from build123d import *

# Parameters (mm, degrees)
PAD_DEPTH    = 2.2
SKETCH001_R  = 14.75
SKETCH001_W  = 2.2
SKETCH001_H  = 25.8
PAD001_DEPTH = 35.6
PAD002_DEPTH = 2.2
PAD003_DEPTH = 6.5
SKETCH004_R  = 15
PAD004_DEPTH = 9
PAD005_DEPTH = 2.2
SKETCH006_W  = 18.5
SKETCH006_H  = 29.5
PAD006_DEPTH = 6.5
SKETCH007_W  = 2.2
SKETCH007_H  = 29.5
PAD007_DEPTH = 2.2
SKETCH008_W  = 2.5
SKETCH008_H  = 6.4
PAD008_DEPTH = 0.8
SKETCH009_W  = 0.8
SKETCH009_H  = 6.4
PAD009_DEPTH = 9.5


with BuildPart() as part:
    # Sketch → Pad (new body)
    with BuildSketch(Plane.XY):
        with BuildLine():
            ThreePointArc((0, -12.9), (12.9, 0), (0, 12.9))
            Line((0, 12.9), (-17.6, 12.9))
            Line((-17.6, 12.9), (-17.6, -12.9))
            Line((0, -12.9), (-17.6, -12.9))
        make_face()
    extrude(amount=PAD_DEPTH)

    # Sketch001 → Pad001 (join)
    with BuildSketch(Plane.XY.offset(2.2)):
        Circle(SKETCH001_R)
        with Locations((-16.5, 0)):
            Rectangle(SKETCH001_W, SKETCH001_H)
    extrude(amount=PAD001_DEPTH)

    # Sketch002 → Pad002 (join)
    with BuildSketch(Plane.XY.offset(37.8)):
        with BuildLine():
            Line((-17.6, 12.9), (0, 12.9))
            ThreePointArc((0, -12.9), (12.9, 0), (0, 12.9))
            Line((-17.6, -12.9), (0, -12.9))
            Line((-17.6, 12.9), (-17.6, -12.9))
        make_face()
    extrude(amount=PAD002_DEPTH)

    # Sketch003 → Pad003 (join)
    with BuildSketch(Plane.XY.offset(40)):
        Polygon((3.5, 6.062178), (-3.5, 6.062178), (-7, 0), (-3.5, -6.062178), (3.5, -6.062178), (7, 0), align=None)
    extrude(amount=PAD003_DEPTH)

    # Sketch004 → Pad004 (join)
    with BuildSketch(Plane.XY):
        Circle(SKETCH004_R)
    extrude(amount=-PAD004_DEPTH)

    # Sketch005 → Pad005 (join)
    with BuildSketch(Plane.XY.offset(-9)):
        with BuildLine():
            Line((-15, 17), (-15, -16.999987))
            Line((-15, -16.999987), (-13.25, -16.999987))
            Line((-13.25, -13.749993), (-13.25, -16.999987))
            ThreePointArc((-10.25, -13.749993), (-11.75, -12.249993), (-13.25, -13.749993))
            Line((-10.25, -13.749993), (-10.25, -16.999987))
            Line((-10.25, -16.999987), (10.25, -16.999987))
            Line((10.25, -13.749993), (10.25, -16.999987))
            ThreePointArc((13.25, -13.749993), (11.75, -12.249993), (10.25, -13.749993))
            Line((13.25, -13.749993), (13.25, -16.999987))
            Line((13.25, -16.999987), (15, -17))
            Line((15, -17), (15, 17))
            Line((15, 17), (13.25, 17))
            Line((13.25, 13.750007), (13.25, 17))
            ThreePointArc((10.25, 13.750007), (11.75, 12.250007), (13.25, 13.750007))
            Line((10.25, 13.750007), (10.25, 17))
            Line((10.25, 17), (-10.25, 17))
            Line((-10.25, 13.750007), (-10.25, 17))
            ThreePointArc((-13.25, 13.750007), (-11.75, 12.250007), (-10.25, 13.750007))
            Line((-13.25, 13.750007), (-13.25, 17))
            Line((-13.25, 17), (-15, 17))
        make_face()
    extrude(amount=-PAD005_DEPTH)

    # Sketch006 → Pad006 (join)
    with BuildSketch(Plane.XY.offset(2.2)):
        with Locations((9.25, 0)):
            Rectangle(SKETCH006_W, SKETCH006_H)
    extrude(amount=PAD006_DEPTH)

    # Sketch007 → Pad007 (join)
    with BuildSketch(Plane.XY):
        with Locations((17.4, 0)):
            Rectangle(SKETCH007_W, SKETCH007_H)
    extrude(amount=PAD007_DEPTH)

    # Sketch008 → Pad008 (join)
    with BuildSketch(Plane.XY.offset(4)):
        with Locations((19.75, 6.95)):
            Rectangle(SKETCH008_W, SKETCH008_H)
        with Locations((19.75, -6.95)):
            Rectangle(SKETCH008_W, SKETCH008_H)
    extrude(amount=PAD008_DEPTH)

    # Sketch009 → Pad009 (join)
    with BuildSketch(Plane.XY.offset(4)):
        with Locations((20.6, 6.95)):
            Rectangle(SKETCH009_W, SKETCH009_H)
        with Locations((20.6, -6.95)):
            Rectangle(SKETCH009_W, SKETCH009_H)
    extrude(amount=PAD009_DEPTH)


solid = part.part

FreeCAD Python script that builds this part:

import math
import FreeCAD as App
import Part
import Sketcher
from FreeCAD import Vector
Q = App.Units.Quantity

doc = App.newDocument("Part")
body = doc.addObject("PartDesign::Body", "Body")

# Sketch on XY plane
sketch1 = body.newObject("Sketcher::SketchObject", "Sketch")
sketch1.AttachmentSupport = (doc.getObject("XY_Plane"), [""])
sketch1.MapMode = "FlatFace"
sketch1.addGeometry([
    Part.ArcOfCircle(Part.Circle(Vector(0, 0, 0), Vector(0, 0, 1), 13), math.radians(-90), math.radians(90)),
    Part.LineSegment(Vector(0, 13, 0), Vector(-18, 13, 0)),
    Part.LineSegment(Vector(-18, 13, 0), Vector(-18, -13, 0)),
    Part.LineSegment(Vector(-18, -13, 0), Vector(0, -13, 0)),
], False)
sketch1.addConstraint([
    Sketcher.Constraint("Tangent", 0, 2, 1, 1),
    Sketcher.Constraint("Coincident", 1, 2, 2, 1),
    Sketcher.Constraint("Coincident", 2, 2, 3, 1),
    Sketcher.Constraint("Tangent", 3, 2, 0, 1),
    Sketcher.Constraint("Horizontal", 1),
    Sketcher.Constraint("Vertical", 2),
    Sketcher.Constraint("Horizontal", 3),
    Sketcher.Constraint("Coincident", 0, 3, -1, 1),
    Sketcher.Constraint("Radius", 0, Q("12.9 mm")),
    Sketcher.Constraint("DistanceX", 1, 2, 1, 1, Q("17.6 mm")),
])
pad1 = body.newObject("PartDesign::Pad", "Pad")
pad1.Profile = sketch1
pad1.Length = 2.2

# Sketch on XY plane
sketch2 = body.newObject("Sketcher::SketchObject", "Sketch001")
sketch2.AttachmentSupport = (doc.getObject("XY_Plane"), [""])
sketch2.MapMode = "FlatFace"
sketch2.AttachmentOffset = App.Placement(Vector(0, 0, 2.2), App.Rotation())
sketch2.addGeometry([
    Part.Circle(Vector(0, 0, 0), Vector(0, 0, 1), 14.8),  # 0
    Part.LineSegment(Vector(-17.6, 12.9, 0), Vector(-17.6, -12.9, 0)),  # 1
    Part.LineSegment(Vector(-17.6, -12.9, 0), Vector(-15.4, -12.9, 0)),  # 2
    Part.LineSegment(Vector(-15.4, -12.9, 0), Vector(-15.4, 12.9, 0)),  # 3
    Part.LineSegment(Vector(-15.4, 12.9, 0), Vector(-17.6, 12.9, 0)),  # 4
], False)
sketch2.addConstraint([
    Sketcher.Constraint("Coincident", 1, 2, 2, 1),
    Sketcher.Constraint("Coincident", 2, 2, 3, 1),
    Sketcher.Constraint("Coincident", 3, 2, 4, 1),
    Sketcher.Constraint("Coincident", 4, 2, 1, 1),
    Sketcher.Constraint("Vertical", 1),
    Sketcher.Constraint("Horizontal", 2),
    Sketcher.Constraint("Vertical", 3),
    Sketcher.Constraint("Horizontal", 4),
    Sketcher.Constraint("Coincident", 0, 3, -1, 1),
    Sketcher.Constraint("Diameter", 0, Q("29.5 mm")),
    Sketcher.Constraint("DistanceX", 2, 1, 2, 2, Q("2.2 mm")),
    Sketcher.Constraint("DistanceY", 1, 2, 1, 1, Q("25.8 mm")),
    Sketcher.Constraint("DistanceX", 1, 2, -1, 1, Q("17.6 mm")),
    Sketcher.Constraint("DistanceY", 1, 2, -1, 1, Q("12.9 mm")),
])
pad2 = body.newObject("PartDesign::Pad", "Pad001")
pad2.Profile = sketch2
pad2.Length = 35.6

# Sketch on XY plane
sketch3 = body.newObject("Sketcher::SketchObject", "Sketch002")
sketch3.AttachmentSupport = (doc.getObject("XY_Plane"), [""])
sketch3.MapMode = "FlatFace"
sketch3.AttachmentOffset = App.Placement(Vector(0, 0, 37.8), App.Rotation())
sketch3.addGeometry([
    Part.LineSegment(Vector(0, 13, 0), Vector(-18, 13, 0)),
    Part.LineSegment(Vector(-18, 13, 0), Vector(-18, -13, 0)),
    Part.LineSegment(Vector(-18, -13, 0), Vector(0, -13, 0)),
    Part.ArcOfCircle(Part.Circle(Vector(0, 0, 0), Vector(0, 0, 1), 13), math.radians(-90), math.radians(90)),
], False)
sketch3.addConstraint([
    Sketcher.Constraint("Coincident", 0, 2, 1, 1),
    Sketcher.Constraint("Coincident", 1, 2, 2, 1),
    Sketcher.Constraint("Tangent", 2, 2, 3, 1),
    Sketcher.Constraint("Tangent", 3, 2, 0, 1),
    Sketcher.Constraint("Horizontal", 0),
    Sketcher.Constraint("Vertical", 1),
    Sketcher.Constraint("Horizontal", 2),
    Sketcher.Constraint("Coincident", 3, 3, -1, 1),
    Sketcher.Constraint("Radius", 3, Q("12.9 mm")),
    Sketcher.Constraint("DistanceX", 0, 2, 0, 1, Q("17.6 mm")),
])
pad3 = body.newObject("PartDesign::Pad", "Pad002")
pad3.Profile = sketch3
pad3.Length = 2.2

# Sketch on XY plane
sketch4 = body.newObject("Sketcher::SketchObject", "Sketch003")
sketch4.AttachmentSupport = (doc.getObject("XY_Plane"), [""])
sketch4.MapMode = "FlatFace"
sketch4.AttachmentOffset = App.Placement(Vector(0, 0, 40), App.Rotation())
sketch4.addGeometry([
    Part.LineSegment(Vector(4, 6, 0), Vector(-4, 6, 0)),  # 0
    Part.LineSegment(Vector(-4, 6, 0), Vector(-7, 0, 0)),  # 1
    Part.LineSegment(Vector(-7, 0, 0), Vector(-4, -6, 0)),  # 2
    Part.LineSegment(Vector(-4, -6, 0), Vector(4, -6, 0)),  # 3
    Part.LineSegment(Vector(4, -6, 0), Vector(7, 0, 0)),  # 4
    Part.LineSegment(Vector(7, 0, 0), Vector(4, 6, 0)),  # 5
], False)
sketch4.addConstraint([
    Sketcher.Constraint("Coincident", 0, 2, 1, 1),
    Sketcher.Constraint("Coincident", 1, 2, 2, 1),
    Sketcher.Constraint("Coincident", 2, 2, 3, 1),
    Sketcher.Constraint("Coincident", 3, 2, 4, 1),
    Sketcher.Constraint("Coincident", 4, 2, 5, 1),
    Sketcher.Constraint("Coincident", 5, 2, 0, 1),
    Sketcher.Constraint("Horizontal", 0),
    Sketcher.Constraint("Horizontal", 3),
    Sketcher.Constraint("Symmetric", 0, 2, 3, 2, -1, 1),
    Sketcher.Constraint("Symmetric", 1, 2, 4, 2, -1, 1),
    Sketcher.Constraint("PointOnObject", 1, 2, -1),
    Sketcher.Constraint("Parallel", 2, 5),
    Sketcher.Constraint("Vertical", 0, 2, 2, 2),
    Sketcher.Constraint("DistanceX", 0, 2, 0, 1, Q("7 mm")),
    Sketcher.Constraint("Angle", 1, Q("-119.999999 deg")),
    Sketcher.Constraint("Distance", 1, Q("7 mm")),
])
pad4 = body.newObject("PartDesign::Pad", "Pad003")
pad4.Profile = sketch4
pad4.Length = 6.5

# Sketch on XY plane
sketch5 = body.newObject("Sketcher::SketchObject", "Sketch004")
sketch5.AttachmentSupport = (doc.getObject("XY_Plane"), [""])
sketch5.MapMode = "FlatFace"
sketch5.addGeometry(Part.Circle(Vector(0, 0, 0), Vector(0, 0, 1), 15), False)
sketch5.addConstraint([
    Sketcher.Constraint("Coincident", 0, 3, -1, 1),
    Sketcher.Constraint("Diameter", 0, Q("30 mm")),
])
pad5 = body.newObject("PartDesign::Pad", "Pad004")
pad5.Profile = sketch5
pad5.Length = 9
pad5.Reversed = True

# Sketch on XY plane
sketch6 = body.newObject("Sketcher::SketchObject", "Sketch005")
sketch6.AttachmentSupport = (doc.getObject("XY_Plane"), [""])
sketch6.MapMode = "FlatFace"
sketch6.AttachmentOffset = App.Placement(Vector(0, 0, -9), App.Rotation())
sketch6.addGeometry([
    Part.LineSegment(Vector(-15, 17, 0), Vector(-15, -17, 0)),  # 0
    Part.LineSegment(Vector(-15, -17, 0), Vector(-13.2, -17, 0)),  # 1
    Part.LineSegment(Vector(-13.2, -17, 0), Vector(-13.2, -13.7, 0)),  # 2
    Part.ArcOfCircle(Part.Circle(Vector(-11.8, -13.7, 0), Vector(0, 0, 1), 1.5), math.radians(0), math.radians(180)),  # 3
    Part.LineSegment(Vector(-10.2, -13.7, 0), Vector(-10.2, -17, 0)),  # 4
    Part.LineSegment(Vector(-10.2, -17, 0), Vector(10.2, -17, 0)),  # 5
    Part.LineSegment(Vector(10.2, -17, 0), Vector(10.2, -13.7, 0)),  # 6
    Part.ArcOfCircle(Part.Circle(Vector(11.8, -13.7, 0), Vector(0, 0, 1), 1.5), math.radians(0), math.radians(180)),  # 7
    Part.LineSegment(Vector(13.2, -13.7, 0), Vector(13.2, -17, 0)),  # 8
    Part.LineSegment(Vector(13.2, -17, 0), Vector(15, -17, 0)),  # 9
    Part.LineSegment(Vector(15, -17, 0), Vector(15, 17, 0)),  # 10
    Part.LineSegment(Vector(15, 17, 0), Vector(13.2, 17, 0)),  # 11
    Part.LineSegment(Vector(13.2, 17, 0), Vector(13.2, 13.8, 0)),  # 12
    Part.ArcOfCircle(Part.Circle(Vector(11.8, 13.8, 0), Vector(0, 0, 1), 1.5), math.radians(180), math.radians(360)),  # 13
    Part.LineSegment(Vector(10.2, 13.8, 0), Vector(10.2, 17, 0)),  # 14
    Part.LineSegment(Vector(10.2, 17, 0), Vector(-10.2, 17, 0)),  # 15
    Part.LineSegment(Vector(-10.2, 17, 0), Vector(-10.2, 13.8, 0)),  # 16
    Part.ArcOfCircle(Part.Circle(Vector(-11.8, 13.8, 0), Vector(0, 0, 1), 1.5), math.radians(180), math.radians(360)),  # 17
    Part.LineSegment(Vector(-13.2, 13.8, 0), Vector(-13.2, 17, 0)),  # 18
    Part.LineSegment(Vector(-13.2, 17, 0), Vector(-15, 17, 0)),  # 19
], False)
sketch6.addConstraint([
    Sketcher.Constraint("Coincident", 0, 2, 1, 1),
    Sketcher.Constraint("Coincident", 1, 2, 2, 1),
    Sketcher.Constraint("Tangent", 2, 2, 3, 2),
    Sketcher.Constraint("Tangent", 3, 1, 4, 1),
    Sketcher.Constraint("Coincident", 4, 2, 5, 1),
    Sketcher.Constraint("Coincident", 5, 2, 6, 1),
    Sketcher.Constraint("Tangent", 6, 2, 7, 2),
    Sketcher.Constraint("Tangent", 7, 1, 8, 1),
    Sketcher.Constraint("Coincident", 8, 2, 9, 1),
    Sketcher.Constraint("Coincident", 9, 2, 10, 1),
    Sketcher.Constraint("Coincident", 10, 2, 11, 1),
    Sketcher.Constraint("Coincident", 11, 2, 12, 1),
    Sketcher.Constraint("Tangent", 12, 2, 13, 2),
    Sketcher.Constraint("Tangent", 13, 1, 14, 1),
    Sketcher.Constraint("Coincident", 14, 2, 15, 1),
    Sketcher.Constraint("Coincident", 15, 2, 16, 1),
    Sketcher.Constraint("Tangent", 16, 2, 17, 2),
    Sketcher.Constraint("Tangent", 17, 1, 18, 1),
    Sketcher.Constraint("Coincident", 18, 2, 19, 1),
    Sketcher.Constraint("Coincident", 19, 2, 0, 1),
    Sketcher.Constraint("Vertical", 0),
    Sketcher.Constraint("Horizontal", 1),
    Sketcher.Constraint("Vertical", 2),
    Sketcher.Constraint("Vertical", 4),
    Sketcher.Constraint("Horizontal", 5),
    Sketcher.Constraint("Vertical", 6),
    Sketcher.Constraint("Vertical", 8),
    Sketcher.Constraint("Vertical", 10),
    Sketcher.Constraint("Horizontal", 11),
    Sketcher.Constraint("Vertical", 12),
    Sketcher.Constraint("Vertical", 14),
    Sketcher.Constraint("Horizontal", 15),
    Sketcher.Constraint("Vertical", 16),
    Sketcher.Constraint("Vertical", 18),
    Sketcher.Constraint("Horizontal", 19),
    Sketcher.Constraint("Equal", 3, 7),
    Sketcher.Constraint("Equal", 7, 13),
    Sketcher.Constraint("Equal", 13, 17),
    Sketcher.Constraint("Symmetric", 9, 2, 19, 2, -1, 1),
    Sketcher.Constraint("Symmetric", 3, 3, 7, 3, -2),
    Sketcher.Constraint("Symmetric", 13, 3, 17, 3, -2),
    Sketcher.Constraint("Horizontal", 1, 2, 4, 2),
    Sketcher.Constraint("Horizontal", 5, 2, 8, 2),
    Sketcher.Constraint("Horizontal", 11, 2, 14, 2),
    Sketcher.Constraint("Horizontal", 15, 2, 18, 2),
    Sketcher.Constraint("Vertical", 7, 3, 13, 3),
    Sketcher.Constraint("Equal", 8, 12),
    Sketcher.Constraint("Radius", 3, Q("1.5 mm")),
    Sketcher.Constraint("DistanceY", 10, 1, 10, 2, Q("34 mm")),
    Sketcher.Constraint("DistanceX", 5, 1, 5, 2, Q("20.5 mm")),
    Sketcher.Constraint("DistanceX", 0, 2, -1, 1, Q("15 mm")),
    Sketcher.Constraint("DistanceY", 7, 3, 13, 3, Q("27.5 mm")),
    Sketcher.Constraint("DistanceY", 0, 2, 0, 1, Q("33.999987 mm")),
])
pad6 = body.newObject("PartDesign::Pad", "Pad005")
pad6.Profile = sketch6
pad6.Length = 2.2
pad6.Reversed = True

# Sketch on XY plane
sketch7 = body.newObject("Sketcher::SketchObject", "Sketch006")
sketch7.AttachmentSupport = (doc.getObject("XY_Plane"), [""])
sketch7.MapMode = "FlatFace"
sketch7.AttachmentOffset = App.Placement(Vector(0, 0, 2.2), App.Rotation())
sketch7.addGeometry([
    Part.LineSegment(Vector(0, 15, 0), Vector(0, -15, 0)),
    Part.LineSegment(Vector(0, -15, 0), Vector(18, -15, 0)),
    Part.LineSegment(Vector(18, -15, 0), Vector(18, 15, 0)),
    Part.LineSegment(Vector(18, 15, 0), Vector(0, 15, 0)),
], False)
sketch7.addConstraint([
    Sketcher.Constraint("Coincident", 0, 2, 1, 1),
    Sketcher.Constraint("Coincident", 1, 2, 2, 1),
    Sketcher.Constraint("Coincident", 2, 2, 3, 1),
    Sketcher.Constraint("Coincident", 3, 2, 0, 1),
    Sketcher.Constraint("Vertical", 0),
    Sketcher.Constraint("Horizontal", 1),
    Sketcher.Constraint("Vertical", 2),
    Sketcher.Constraint("Horizontal", 3),
    Sketcher.Constraint("Symmetric", 0, 2, 3, 2, -1, 1),
    Sketcher.Constraint("DistanceX", 1, 1, 1, 2, Q("18.5 mm")),
    Sketcher.Constraint("DistanceY", 0, 2, 0, 1, Q("29.5 mm")),
])
pad7 = body.newObject("PartDesign::Pad", "Pad006")
pad7.Profile = sketch7
pad7.Length = 6.5

# Sketch on XY plane
sketch8 = body.newObject("Sketcher::SketchObject", "Sketch007")
sketch8.AttachmentSupport = (doc.getObject("XY_Plane"), [""])
sketch8.MapMode = "FlatFace"
sketch8.addGeometry([
    Part.LineSegment(Vector(16.3, 14.8, 0), Vector(16.3, -14.8, 0)),
    Part.LineSegment(Vector(16.3, -14.8, 0), Vector(18.5, -14.8, 0)),
    Part.LineSegment(Vector(18.5, -14.8, 0), Vector(18.5, 14.8, 0)),
    Part.LineSegment(Vector(18.5, 14.8, 0), Vector(16.3, 14.8, 0)),
], False)
sketch8.addConstraint([
    Sketcher.Constraint("Coincident", 0, 2, 1, 1),
    Sketcher.Constraint("Coincident", 1, 2, 2, 1),
    Sketcher.Constraint("Coincident", 2, 2, 3, 1),
    Sketcher.Constraint("Coincident", 3, 2, 0, 1),
    Sketcher.Constraint("Vertical", 0),
    Sketcher.Constraint("Horizontal", 1),
    Sketcher.Constraint("Vertical", 2),
    Sketcher.Constraint("Horizontal", 3),
    Sketcher.Constraint("DistanceX", 1, 1, 1, 2, Q("2.2 mm")),
    Sketcher.Constraint("DistanceY", 0, 2, 0, 1, Q("29.5 mm")),
    Sketcher.Constraint("DistanceX", -1, 1, 0, 2, Q("16.3 mm")),
    Sketcher.Constraint("DistanceY", 0, 2, -1, 1, Q("14.75 mm")),
])
pad8 = body.newObject("PartDesign::Pad", "Pad007")
pad8.Profile = sketch8
pad8.Length = 2.2

# Sketch on XY plane
sketch9 = body.newObject("Sketcher::SketchObject", "Sketch008")
sketch9.AttachmentSupport = (doc.getObject("XY_Plane"), [""])
sketch9.MapMode = "FlatFace"
sketch9.AttachmentOffset = App.Placement(Vector(0, 0, 4), App.Rotation())
sketch9.addGeometry([
    Part.LineSegment(Vector(18.5, 10.2, 0), Vector(18.5, 3.8, 0)),  # 0
    Part.LineSegment(Vector(18.5, 3.8, 0), Vector(21, 3.8, 0)),  # 1
    Part.LineSegment(Vector(21, 3.8, 0), Vector(21, 10.2, 0)),  # 2
    Part.LineSegment(Vector(21, 10.2, 0), Vector(18.5, 10.2, 0)),  # 3
    Part.LineSegment(Vector(18.5, -3.8, 0), Vector(18.5, -10.2, 0)),  # 4
    Part.LineSegment(Vector(18.5, -10.2, 0), Vector(21, -10.2, 0)),  # 5
    Part.LineSegment(Vector(21, -10.2, 0), Vector(21, -3.8, 0)),  # 6
    Part.LineSegment(Vector(21, -3.8, 0), Vector(18.5, -3.8, 0)),  # 7
], False)
sketch9.addConstraint([
    Sketcher.Constraint("Coincident", 0, 2, 1, 1),
    Sketcher.Constraint("Coincident", 1, 2, 2, 1),
    Sketcher.Constraint("Coincident", 2, 2, 3, 1),
    Sketcher.Constraint("Coincident", 3, 2, 0, 1),
    Sketcher.Constraint("Coincident", 4, 2, 5, 1),
    Sketcher.Constraint("Coincident", 5, 2, 6, 1),
    Sketcher.Constraint("Coincident", 6, 2, 7, 1),
    Sketcher.Constraint("Coincident", 7, 2, 4, 1),
    Sketcher.Constraint("Vertical", 0),
    Sketcher.Constraint("Horizontal", 1),
    Sketcher.Constraint("Vertical", 2),
    Sketcher.Constraint("Horizontal", 3),
    Sketcher.Constraint("Vertical", 4),
    Sketcher.Constraint("Horizontal", 5),
    Sketcher.Constraint("Vertical", 6),
    Sketcher.Constraint("Horizontal", 7),
    Sketcher.Constraint("Symmetric", 3, 2, 4, 2, -1),
    Sketcher.Constraint("Symmetric", 1, 2, 6, 2, -1),
    Sketcher.Constraint("DistanceX", 1, 1, 1, 2, Q("2.5 mm")),
    Sketcher.Constraint("DistanceY", 0, 2, 0, 1, Q("6.4 mm")),
    Sketcher.Constraint("DistanceX", -1, 1, 1, 2, Q("21 mm")),
    Sketcher.Constraint("DistanceY", 4, 2, 0, 2, Q("13.9 mm")),
])
pad9 = body.newObject("PartDesign::Pad", "Pad008")
pad9.Profile = sketch9
pad9.Length = 0.8

# Sketch on XY plane
sketch10 = body.newObject("Sketcher::SketchObject", "Sketch009")
sketch10.AttachmentSupport = (doc.getObject("XY_Plane"), [""])
sketch10.MapMode = "FlatFace"
sketch10.AttachmentOffset = App.Placement(Vector(0, 0, 4), App.Rotation())
sketch10.addGeometry([
    Part.LineSegment(Vector(20.2, 10.2, 0), Vector(20.2, 3.8, 0)),  # 0
    Part.LineSegment(Vector(20.2, 3.8, 0), Vector(21, 3.8, 0)),  # 1
    Part.LineSegment(Vector(21, 3.8, 0), Vector(21, 10.2, 0)),  # 2
    Part.LineSegment(Vector(21, 10.2, 0), Vector(20.2, 10.2, 0)),  # 3
    Part.LineSegment(Vector(20.2, -3.8, 0), Vector(20.2, -10.2, 0)),  # 4
    Part.LineSegment(Vector(20.2, -10.2, 0), Vector(21, -10.2, 0)),  # 5
    Part.LineSegment(Vector(21, -10.2, 0), Vector(21, -3.8, 0)),  # 6
    Part.LineSegment(Vector(21, -3.8, 0), Vector(20.2, -3.8, 0)),  # 7
], False)
sketch10.addConstraint([
    Sketcher.Constraint("Coincident", 0, 2, 1, 1),
    Sketcher.Constraint("Coincident", 1, 2, 2, 1),
    Sketcher.Constraint("Coincident", 2, 2, 3, 1),
    Sketcher.Constraint("Coincident", 3, 2, 0, 1),
    Sketcher.Constraint("Coincident", 4, 2, 5, 1),
    Sketcher.Constraint("Coincident", 5, 2, 6, 1),
    Sketcher.Constraint("Coincident", 6, 2, 7, 1),
    Sketcher.Constraint("Coincident", 7, 2, 4, 1),
    Sketcher.Constraint("Vertical", 0),
    Sketcher.Constraint("Horizontal", 1),
    Sketcher.Constraint("Vertical", 2),
    Sketcher.Constraint("Horizontal", 3),
    Sketcher.Constraint("Vertical", 4),
    Sketcher.Constraint("Horizontal", 5),
    Sketcher.Constraint("Vertical", 6),
    Sketcher.Constraint("Horizontal", 7),
    Sketcher.Constraint("Symmetric", 3, 2, 4, 2, -1),
    Sketcher.Constraint("Symmetric", 1, 2, 6, 2, -1),
    Sketcher.Constraint("DistanceX", 1, 1, 1, 2, Q("0.8 mm")),
    Sketcher.Constraint("DistanceY", 0, 2, 0, 1, Q("6.4 mm")),
    Sketcher.Constraint("DistanceX", -1, 1, 1, 2, Q("21 mm")),
    Sketcher.Constraint("DistanceY", 4, 2, 0, 2, Q("13.9 mm")),
])
pad10 = body.newObject("PartDesign::Pad", "Pad009")
pad10.Profile = sketch10
pad10.Length = 9.5

doc.recompute()
